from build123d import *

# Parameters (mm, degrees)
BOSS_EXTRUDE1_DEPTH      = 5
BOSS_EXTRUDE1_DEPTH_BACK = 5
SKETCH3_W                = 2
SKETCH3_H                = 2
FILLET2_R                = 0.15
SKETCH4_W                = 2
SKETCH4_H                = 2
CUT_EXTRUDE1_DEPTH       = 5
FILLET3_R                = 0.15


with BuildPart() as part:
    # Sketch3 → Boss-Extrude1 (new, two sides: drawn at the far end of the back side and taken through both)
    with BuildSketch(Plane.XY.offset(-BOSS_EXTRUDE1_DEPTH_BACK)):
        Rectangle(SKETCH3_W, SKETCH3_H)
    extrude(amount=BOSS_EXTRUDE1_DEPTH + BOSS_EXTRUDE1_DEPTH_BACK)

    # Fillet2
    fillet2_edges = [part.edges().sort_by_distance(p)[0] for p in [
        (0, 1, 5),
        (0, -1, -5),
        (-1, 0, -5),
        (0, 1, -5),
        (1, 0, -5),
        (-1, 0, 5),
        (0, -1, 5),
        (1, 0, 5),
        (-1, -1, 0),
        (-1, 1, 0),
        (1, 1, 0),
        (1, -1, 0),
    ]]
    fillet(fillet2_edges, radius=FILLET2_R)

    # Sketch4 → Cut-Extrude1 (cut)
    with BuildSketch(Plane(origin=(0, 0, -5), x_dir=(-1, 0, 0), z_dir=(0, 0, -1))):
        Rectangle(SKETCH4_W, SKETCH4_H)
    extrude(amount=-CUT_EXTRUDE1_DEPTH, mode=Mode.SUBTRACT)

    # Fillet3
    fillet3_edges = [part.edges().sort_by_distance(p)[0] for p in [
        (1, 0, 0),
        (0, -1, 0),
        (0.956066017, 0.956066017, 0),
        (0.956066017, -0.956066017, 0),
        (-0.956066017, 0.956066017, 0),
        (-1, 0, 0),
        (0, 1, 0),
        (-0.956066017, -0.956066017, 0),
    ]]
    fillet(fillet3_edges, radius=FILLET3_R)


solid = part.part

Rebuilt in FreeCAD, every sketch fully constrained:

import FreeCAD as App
import Part
import Sketcher


def edges_at(feature, points):
    """Names of the edges that pass closest to the given points."""
    edges = feature.Shape.Edges
    near = lambda p: min(range(len(edges)), key=lambda i: edges[i].distToShape(Part.Vertex(*p))[0])
    return sorted({f"Edge{near(p) + 1}" for p in points})

doc = App.newDocument("Part")
body = doc.addObject("PartDesign::Body", "Body")

sketch1 = doc.addObject("Sketcher::SketchObject", "Sketch")
body.addObject(sketch1)
sketch1.AttachmentSupport = (doc.XY_Plane, [""])
sketch1.MapMode = "FlatFace"
sketch1.addGeometry(Part.LineSegment(App.Vector(-1, 1, 0), App.Vector(-1, -1, 0)), False)
sketch1.addGeometry(Part.LineSegment(App.Vector(-1, -1, 0), App.Vector(1, -1, 0)), False)
sketch1.addGeometry(Part.LineSegment(App.Vector(1, -1, 0), App.Vector(1, 1, 0)), False)
sketch1.addGeometry(Part.LineSegment(App.Vector(1, 1, 0), App.Vector(-1, 1, 0)), False)
sketch1.addConstraint(Sketcher.Constraint("Coincident", 0, 2, 1, 1))
sketch1.addConstraint(Sketcher.Constraint("Coincident", 1, 2, 2, 1))
sketch1.addConstraint(Sketcher.Constraint("Coincident", 2, 2, 3, 1))
sketch1.addConstraint(Sketcher.Constraint("Coincident", 3, 2, 0, 1))
sketch1.addConstraint(Sketcher.Constraint("Vertical", 0))
sketch1.addConstraint(Sketcher.Constraint("Horizontal", 1))
sketch1.addConstraint(Sketcher.Constraint("Vertical", 2))
sketch1.addConstraint(Sketcher.Constraint("Horizontal", 3))
sketch1.addConstraint(Sketcher.Constraint("Symmetric", 0, 2, 2, 2, -1, 1))
sketch1.addConstraint(Sketcher.Constraint("Equal", 3, 0))
sketch1.addConstraint(Sketcher.Constraint("DistanceX", 1, 1, 1, 2, 2.0))
pad1 = doc.addObject("PartDesign::Pad", "Pad")
body.addObject(pad1)
pad1.Profile = sketch1
pad1.Type = "TwoLengths"
pad1.Length = 5
pad1.Length2 = 5
doc.recompute()

fillet = doc.addObject("PartDesign::Fillet", "Fillet")
body.addObject(fillet)
fillet.Base = (pad1, ["Edge1"])
fillet.UseAllEdges = True
fillet.Radius = 0.15

sketch2 = doc.addObject("Sketcher::SketchObject", "Sketch001")
body.addObject(sketch2)
sketch2.AttachmentSupport = (doc.XY_Plane, [""])
sketch2.MapMode = "FlatFace"
sketch2.AttachmentOffset = App.Placement(App.Vector(0, 0, -5), App.Rotation())
sketch2.addGeometry(Part.LineSegment(App.Vector(1, 1, 0), App.Vector(1, -1, 0)), False)
sketch2.addGeometry(Part.LineSegment(App.Vector(1, -1, 0), App.Vector(-1, -1, 0)), False)
sketch2.addGeometry(Part.LineSegment(App.Vector(-1, -1, 0), App.Vector(-1, 1, 0)), False)
sketch2.addGeometry(Part.LineSegment(App.Vector(-1, 1, 0), App.Vector(1, 1, 0)), False)
sketch2.addConstraint(Sketcher.Constraint("Coincident", 0, 2, 1, 1))
sketch2.addConstraint(Sketcher.Constraint("Coincident", 1, 2, 2, 1))
sketch2.addConstraint(Sketcher.Constraint("Coincident", 2, 2, 3, 1))
sketch2.addConstraint(Sketcher.Constraint("Coincident", 3, 2, 0, 1))
sketch2.addConstraint(Sketcher.Constraint("Vertical", 0))
sketch2.addConstraint(Sketcher.Constraint("Horizontal", 1))
sketch2.addConstraint(Sketcher.Constraint("Vertical", 2))
sketch2.addConstraint(Sketcher.Constraint("Horizontal", 3))
sketch2.addConstraint(Sketcher.Constraint("Symmetric", 0, 2, 2, 2, -1, 1))
sketch2.addConstraint(Sketcher.Constraint("Equal", 3, 0))
sketch2.addConstraint(Sketcher.Constraint("DistanceX", 1, 2, 1, 1, 2.0))
pocket1 = doc.addObject("PartDesign::Pocket", "Pocket")
body.addObject(pocket1)
pocket1.Profile = sketch2
pocket1.Length = 5
pocket1.Reversed = True
doc.recompute()

fillet2 = doc.addObject("PartDesign::Fillet", "Fillet001")
body.addObject(fillet2)
fillet2.Base = (pocket1, edges_at(pocket1, [
    (1, 0, 0),
    (0, -1, 0),
    (0.956, 0.956, 0),
    (0.956, -0.956, 0),
    (-0.956, 0.956, 0),
    (-1, 0, 0),
    (0, 1, 0),
    (-0.956, -0.956, 0),
]))
fillet2.Radius = 0.15

doc.recompute()
